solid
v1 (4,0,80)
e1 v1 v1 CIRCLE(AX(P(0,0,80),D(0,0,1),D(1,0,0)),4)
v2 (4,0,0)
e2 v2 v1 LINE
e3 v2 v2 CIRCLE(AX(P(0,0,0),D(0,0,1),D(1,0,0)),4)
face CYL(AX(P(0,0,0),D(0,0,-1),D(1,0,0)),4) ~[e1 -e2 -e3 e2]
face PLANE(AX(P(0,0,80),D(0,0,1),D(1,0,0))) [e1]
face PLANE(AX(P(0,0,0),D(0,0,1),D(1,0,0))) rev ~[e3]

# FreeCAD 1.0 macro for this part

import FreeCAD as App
import Part
import Sketcher
from FreeCAD import Vector

doc = App.newDocument("Part")
body = doc.addObject("PartDesign::Body", "Body")

sketch1 = body.newObject("Sketcher::SketchObject", "Sketch")
sketch1.AttachmentSupport = (doc.getObject("XY_Plane"), [""])
sketch1.MapMode = "FlatFace"
sketch1.addGeometry(Part.Circle(Vector(0, 0, 0), Vector(0, 0, 1), 4), False)
sketch1.addConstraint(Sketcher.Constraint("Coincident", 0, 3, -1, 1))
sketch1.addConstraint(Sketcher.Constraint("Diameter", 0, 8.0))
pad1 = body.newObject("PartDesign::Pad", "Pad")
pad1.Profile = sketch1
pad1.Length = 80

doc.recompute()
